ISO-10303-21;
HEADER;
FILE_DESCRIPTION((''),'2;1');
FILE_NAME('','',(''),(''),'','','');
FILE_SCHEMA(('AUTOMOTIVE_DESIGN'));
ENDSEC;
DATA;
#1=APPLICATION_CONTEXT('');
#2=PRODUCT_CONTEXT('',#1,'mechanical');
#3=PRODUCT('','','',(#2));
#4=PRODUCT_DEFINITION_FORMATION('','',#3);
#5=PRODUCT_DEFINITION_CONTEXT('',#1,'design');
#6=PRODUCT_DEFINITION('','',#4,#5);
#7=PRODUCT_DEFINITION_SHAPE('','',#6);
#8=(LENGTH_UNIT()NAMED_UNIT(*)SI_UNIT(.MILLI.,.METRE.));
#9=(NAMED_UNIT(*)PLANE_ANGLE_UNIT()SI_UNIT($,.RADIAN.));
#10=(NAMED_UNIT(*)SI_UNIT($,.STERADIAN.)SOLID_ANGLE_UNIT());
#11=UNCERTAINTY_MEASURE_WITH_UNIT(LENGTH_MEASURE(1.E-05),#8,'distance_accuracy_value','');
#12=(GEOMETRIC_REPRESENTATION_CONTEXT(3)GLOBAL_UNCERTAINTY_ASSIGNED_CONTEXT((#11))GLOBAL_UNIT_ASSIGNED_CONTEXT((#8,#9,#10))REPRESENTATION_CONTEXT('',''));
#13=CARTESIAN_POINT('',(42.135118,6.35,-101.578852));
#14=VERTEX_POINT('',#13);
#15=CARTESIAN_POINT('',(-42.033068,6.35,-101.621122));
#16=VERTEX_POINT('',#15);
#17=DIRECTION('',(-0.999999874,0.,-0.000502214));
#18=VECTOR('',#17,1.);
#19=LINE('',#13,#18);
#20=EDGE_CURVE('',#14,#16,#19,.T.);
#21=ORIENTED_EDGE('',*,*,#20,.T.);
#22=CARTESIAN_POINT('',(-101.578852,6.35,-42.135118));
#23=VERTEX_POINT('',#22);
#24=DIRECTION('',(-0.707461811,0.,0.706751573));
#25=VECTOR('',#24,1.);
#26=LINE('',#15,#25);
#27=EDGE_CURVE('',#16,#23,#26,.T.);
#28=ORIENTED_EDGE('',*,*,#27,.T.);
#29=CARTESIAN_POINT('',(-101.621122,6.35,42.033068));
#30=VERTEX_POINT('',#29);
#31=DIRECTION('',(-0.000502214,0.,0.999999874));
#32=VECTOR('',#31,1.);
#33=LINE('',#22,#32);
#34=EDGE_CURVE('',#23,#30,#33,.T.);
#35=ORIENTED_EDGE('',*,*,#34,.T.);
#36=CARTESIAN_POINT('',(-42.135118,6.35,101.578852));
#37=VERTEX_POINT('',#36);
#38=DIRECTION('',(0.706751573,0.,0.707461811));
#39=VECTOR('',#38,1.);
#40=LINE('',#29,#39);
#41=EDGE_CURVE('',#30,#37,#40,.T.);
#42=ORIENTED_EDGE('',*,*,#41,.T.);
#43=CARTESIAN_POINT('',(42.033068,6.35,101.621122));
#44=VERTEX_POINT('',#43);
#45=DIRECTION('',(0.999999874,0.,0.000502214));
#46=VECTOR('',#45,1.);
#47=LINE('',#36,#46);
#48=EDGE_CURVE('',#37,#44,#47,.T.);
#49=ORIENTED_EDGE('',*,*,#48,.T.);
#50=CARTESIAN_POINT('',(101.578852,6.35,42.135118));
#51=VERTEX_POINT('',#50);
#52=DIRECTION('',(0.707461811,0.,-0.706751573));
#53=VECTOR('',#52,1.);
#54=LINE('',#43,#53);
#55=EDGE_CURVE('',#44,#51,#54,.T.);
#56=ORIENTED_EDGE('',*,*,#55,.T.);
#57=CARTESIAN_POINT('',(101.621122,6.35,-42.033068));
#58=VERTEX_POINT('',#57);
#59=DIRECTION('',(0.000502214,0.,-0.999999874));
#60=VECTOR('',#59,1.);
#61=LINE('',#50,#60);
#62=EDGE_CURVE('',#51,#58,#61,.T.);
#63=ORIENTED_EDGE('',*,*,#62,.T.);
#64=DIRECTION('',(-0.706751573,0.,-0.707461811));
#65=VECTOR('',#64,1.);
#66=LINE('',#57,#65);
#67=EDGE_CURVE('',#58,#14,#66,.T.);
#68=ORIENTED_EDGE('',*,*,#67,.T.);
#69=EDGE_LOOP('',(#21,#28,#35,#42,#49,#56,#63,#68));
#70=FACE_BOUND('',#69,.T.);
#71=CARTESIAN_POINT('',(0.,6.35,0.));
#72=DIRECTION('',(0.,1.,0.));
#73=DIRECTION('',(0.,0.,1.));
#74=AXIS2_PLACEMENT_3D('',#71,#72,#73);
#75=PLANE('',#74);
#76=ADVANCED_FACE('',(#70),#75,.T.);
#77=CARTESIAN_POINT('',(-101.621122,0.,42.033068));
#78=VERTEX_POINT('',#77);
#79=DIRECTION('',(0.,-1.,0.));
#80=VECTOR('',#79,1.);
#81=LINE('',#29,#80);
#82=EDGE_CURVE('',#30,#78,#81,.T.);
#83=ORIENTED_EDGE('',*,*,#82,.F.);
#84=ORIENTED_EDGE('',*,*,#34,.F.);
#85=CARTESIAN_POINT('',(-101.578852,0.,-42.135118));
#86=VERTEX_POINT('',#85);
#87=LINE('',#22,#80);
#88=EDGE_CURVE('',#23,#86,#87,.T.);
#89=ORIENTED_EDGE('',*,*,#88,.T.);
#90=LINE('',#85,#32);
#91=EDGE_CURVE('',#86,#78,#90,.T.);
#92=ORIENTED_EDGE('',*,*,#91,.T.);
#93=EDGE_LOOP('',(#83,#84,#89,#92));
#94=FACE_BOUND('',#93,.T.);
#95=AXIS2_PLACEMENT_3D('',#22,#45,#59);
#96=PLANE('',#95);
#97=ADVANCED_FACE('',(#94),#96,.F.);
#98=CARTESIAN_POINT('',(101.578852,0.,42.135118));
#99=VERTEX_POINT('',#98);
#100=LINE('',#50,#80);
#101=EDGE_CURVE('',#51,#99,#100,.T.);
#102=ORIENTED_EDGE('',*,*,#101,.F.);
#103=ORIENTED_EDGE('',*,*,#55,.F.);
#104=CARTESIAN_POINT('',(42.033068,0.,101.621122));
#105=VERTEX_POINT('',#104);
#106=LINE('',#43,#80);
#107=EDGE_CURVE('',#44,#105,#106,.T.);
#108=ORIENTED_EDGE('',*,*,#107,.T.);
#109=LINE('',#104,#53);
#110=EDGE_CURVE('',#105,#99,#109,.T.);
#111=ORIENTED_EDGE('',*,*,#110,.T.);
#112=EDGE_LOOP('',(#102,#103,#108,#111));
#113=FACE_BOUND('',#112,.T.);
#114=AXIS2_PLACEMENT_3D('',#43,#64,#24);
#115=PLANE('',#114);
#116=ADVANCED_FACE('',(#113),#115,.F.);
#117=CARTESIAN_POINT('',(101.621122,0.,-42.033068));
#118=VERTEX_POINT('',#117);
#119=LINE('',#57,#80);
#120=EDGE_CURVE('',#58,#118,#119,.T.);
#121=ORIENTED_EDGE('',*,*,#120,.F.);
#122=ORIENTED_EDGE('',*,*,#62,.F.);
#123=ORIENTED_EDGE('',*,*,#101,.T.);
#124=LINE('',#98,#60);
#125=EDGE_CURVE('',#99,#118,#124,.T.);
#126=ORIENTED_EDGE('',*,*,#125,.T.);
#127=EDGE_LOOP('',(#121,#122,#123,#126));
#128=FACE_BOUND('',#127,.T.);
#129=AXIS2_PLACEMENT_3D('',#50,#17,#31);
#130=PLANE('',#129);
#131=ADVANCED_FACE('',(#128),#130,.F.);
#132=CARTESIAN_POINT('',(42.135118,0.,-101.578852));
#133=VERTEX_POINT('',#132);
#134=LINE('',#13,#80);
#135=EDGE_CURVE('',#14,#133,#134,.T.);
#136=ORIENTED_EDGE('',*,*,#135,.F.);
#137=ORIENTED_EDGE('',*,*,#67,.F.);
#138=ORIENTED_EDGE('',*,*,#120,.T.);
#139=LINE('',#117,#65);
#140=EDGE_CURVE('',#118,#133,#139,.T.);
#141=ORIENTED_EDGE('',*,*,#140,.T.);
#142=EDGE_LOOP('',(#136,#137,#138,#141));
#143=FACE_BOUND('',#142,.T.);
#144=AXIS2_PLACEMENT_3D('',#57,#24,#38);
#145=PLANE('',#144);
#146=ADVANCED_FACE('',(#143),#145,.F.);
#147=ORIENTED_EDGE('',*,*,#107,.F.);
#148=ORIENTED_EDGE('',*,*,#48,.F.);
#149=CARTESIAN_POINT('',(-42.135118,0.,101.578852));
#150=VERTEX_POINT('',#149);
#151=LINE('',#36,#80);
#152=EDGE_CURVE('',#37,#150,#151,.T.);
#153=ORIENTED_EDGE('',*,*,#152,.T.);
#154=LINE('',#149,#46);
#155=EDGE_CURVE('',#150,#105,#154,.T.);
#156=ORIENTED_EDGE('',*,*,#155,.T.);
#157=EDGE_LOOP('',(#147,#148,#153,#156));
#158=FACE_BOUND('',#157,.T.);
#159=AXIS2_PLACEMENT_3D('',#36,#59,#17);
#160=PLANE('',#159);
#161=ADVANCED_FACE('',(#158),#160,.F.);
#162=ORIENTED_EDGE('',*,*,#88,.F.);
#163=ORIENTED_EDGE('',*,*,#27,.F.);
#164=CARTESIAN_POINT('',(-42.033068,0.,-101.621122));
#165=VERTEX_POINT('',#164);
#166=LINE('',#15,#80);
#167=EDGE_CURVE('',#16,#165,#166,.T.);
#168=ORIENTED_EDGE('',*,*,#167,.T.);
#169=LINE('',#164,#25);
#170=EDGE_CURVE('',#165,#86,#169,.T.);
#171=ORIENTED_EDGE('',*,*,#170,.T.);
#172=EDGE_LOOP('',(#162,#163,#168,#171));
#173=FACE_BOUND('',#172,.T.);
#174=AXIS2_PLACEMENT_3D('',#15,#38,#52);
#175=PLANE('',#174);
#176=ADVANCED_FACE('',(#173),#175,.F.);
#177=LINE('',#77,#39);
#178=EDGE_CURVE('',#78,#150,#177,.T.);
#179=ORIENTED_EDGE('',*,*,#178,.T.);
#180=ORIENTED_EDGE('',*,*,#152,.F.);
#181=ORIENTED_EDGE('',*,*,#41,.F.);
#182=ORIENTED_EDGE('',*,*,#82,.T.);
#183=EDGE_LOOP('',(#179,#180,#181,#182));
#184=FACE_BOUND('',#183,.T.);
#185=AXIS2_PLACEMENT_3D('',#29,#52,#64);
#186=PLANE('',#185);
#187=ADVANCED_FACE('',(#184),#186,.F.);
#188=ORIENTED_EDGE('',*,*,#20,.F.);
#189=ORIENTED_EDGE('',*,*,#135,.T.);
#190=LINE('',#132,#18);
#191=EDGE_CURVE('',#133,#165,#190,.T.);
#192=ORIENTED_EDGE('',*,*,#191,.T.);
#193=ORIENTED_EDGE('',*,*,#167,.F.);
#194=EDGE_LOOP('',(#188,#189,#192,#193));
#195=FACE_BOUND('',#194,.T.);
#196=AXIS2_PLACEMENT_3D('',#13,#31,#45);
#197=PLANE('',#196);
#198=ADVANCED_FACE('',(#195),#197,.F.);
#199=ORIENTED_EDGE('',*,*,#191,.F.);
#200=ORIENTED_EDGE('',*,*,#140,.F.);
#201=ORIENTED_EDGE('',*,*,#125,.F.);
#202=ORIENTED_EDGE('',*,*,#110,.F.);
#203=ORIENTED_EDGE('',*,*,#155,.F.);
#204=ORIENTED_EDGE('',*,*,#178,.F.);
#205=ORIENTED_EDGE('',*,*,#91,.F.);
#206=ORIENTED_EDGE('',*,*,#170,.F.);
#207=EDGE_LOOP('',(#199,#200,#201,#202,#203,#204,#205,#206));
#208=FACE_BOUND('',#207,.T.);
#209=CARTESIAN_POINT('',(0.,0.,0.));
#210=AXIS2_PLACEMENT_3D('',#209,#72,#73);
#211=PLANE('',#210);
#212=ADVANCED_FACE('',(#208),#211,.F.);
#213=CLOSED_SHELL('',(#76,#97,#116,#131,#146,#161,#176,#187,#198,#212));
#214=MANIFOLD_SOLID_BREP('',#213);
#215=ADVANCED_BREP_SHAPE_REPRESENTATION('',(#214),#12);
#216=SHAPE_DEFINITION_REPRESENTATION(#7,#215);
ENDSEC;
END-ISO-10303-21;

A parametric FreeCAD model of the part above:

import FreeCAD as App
import Part
import Sketcher

V = App.Vector
Q = App.Units.Quantity


def add_polygon(sketch, points):
    """Adds a closed chain of lines whose ends are joined by coincident constraints."""
    first, n = sketch.GeometryCount, len(points)
    for a, b in zip(points, points[1:] + points[:1]):
        sketch.addGeometry(Part.LineSegment(App.Vector(*a, 0), App.Vector(*b, 0)), False)
    for i in range(n):
        sketch.addConstraint(Sketcher.Constraint("Coincident", first + i, 2, first + (i + 1) % n, 1))

doc = App.newDocument("Part")
body = doc.addObject("PartDesign::Body", "Body")

sketch1 = body.newObject("Sketcher::SketchObject", "Sketch")
sketch1.AttachmentSupport = (doc.getObject("XZ_Plane"), [""])
sketch1.MapMode = "FlatFace"
add_polygon(sketch1, [(101.621122, -42.033068), (42.135118, -101.578852), (-42.033068, -101.621122), (-101.578852, -42.135118), (-101.621122, 42.033068), (-42.135118, 101.578852), (42.033068, 101.621122), (101.578852, 42.135118)])
sketch1.addConstraint(Sketcher.Constraint("Symmetric", 0, 2, 4, 2, -1, 1))
sketch1.addConstraint(Sketcher.Constraint("Symmetric", 1, 2, 5, 2, -1, 1))
sketch1.addConstraint(Sketcher.Constraint("Symmetric", 2, 2, 6, 2, -1, 1))
sketch1.addConstraint(Sketcher.Constraint("Symmetric", 3, 2, 7, 2, -1, 1))
sketch1.addConstraint(Sketcher.Constraint("Perpendicular", 0, 2))
sketch1.addConstraint(Sketcher.Constraint("Perpendicular", 1, 3))
sketch1.addConstraint(Sketcher.Constraint("Equal", 0, 1))
sketch1.addConstraint(Sketcher.Constraint("Equal", 1, 2))
sketch1.addConstraint(Sketcher.Constraint("Equal", 2, 3))
sketch1.addConstraint(Sketcher.Constraint("DistanceY", 0, 2, -1, 1, Q("101.578852 mm")))
sketch1.addConstraint(Sketcher.Constraint("DistanceY", 1, 2, 0, 2, Q("0.04227 mm")))
sketch1.addConstraint(Sketcher.Constraint("DistanceX", 2, 2, 0, 2, Q("143.71397 mm")))
pad1 = body.newObject("PartDesign::Pad", "Pad")
pad1.Profile = sketch1
pad1.Length = Q("0.25 in")
pad1.Reversed = True

doc.recompute()
